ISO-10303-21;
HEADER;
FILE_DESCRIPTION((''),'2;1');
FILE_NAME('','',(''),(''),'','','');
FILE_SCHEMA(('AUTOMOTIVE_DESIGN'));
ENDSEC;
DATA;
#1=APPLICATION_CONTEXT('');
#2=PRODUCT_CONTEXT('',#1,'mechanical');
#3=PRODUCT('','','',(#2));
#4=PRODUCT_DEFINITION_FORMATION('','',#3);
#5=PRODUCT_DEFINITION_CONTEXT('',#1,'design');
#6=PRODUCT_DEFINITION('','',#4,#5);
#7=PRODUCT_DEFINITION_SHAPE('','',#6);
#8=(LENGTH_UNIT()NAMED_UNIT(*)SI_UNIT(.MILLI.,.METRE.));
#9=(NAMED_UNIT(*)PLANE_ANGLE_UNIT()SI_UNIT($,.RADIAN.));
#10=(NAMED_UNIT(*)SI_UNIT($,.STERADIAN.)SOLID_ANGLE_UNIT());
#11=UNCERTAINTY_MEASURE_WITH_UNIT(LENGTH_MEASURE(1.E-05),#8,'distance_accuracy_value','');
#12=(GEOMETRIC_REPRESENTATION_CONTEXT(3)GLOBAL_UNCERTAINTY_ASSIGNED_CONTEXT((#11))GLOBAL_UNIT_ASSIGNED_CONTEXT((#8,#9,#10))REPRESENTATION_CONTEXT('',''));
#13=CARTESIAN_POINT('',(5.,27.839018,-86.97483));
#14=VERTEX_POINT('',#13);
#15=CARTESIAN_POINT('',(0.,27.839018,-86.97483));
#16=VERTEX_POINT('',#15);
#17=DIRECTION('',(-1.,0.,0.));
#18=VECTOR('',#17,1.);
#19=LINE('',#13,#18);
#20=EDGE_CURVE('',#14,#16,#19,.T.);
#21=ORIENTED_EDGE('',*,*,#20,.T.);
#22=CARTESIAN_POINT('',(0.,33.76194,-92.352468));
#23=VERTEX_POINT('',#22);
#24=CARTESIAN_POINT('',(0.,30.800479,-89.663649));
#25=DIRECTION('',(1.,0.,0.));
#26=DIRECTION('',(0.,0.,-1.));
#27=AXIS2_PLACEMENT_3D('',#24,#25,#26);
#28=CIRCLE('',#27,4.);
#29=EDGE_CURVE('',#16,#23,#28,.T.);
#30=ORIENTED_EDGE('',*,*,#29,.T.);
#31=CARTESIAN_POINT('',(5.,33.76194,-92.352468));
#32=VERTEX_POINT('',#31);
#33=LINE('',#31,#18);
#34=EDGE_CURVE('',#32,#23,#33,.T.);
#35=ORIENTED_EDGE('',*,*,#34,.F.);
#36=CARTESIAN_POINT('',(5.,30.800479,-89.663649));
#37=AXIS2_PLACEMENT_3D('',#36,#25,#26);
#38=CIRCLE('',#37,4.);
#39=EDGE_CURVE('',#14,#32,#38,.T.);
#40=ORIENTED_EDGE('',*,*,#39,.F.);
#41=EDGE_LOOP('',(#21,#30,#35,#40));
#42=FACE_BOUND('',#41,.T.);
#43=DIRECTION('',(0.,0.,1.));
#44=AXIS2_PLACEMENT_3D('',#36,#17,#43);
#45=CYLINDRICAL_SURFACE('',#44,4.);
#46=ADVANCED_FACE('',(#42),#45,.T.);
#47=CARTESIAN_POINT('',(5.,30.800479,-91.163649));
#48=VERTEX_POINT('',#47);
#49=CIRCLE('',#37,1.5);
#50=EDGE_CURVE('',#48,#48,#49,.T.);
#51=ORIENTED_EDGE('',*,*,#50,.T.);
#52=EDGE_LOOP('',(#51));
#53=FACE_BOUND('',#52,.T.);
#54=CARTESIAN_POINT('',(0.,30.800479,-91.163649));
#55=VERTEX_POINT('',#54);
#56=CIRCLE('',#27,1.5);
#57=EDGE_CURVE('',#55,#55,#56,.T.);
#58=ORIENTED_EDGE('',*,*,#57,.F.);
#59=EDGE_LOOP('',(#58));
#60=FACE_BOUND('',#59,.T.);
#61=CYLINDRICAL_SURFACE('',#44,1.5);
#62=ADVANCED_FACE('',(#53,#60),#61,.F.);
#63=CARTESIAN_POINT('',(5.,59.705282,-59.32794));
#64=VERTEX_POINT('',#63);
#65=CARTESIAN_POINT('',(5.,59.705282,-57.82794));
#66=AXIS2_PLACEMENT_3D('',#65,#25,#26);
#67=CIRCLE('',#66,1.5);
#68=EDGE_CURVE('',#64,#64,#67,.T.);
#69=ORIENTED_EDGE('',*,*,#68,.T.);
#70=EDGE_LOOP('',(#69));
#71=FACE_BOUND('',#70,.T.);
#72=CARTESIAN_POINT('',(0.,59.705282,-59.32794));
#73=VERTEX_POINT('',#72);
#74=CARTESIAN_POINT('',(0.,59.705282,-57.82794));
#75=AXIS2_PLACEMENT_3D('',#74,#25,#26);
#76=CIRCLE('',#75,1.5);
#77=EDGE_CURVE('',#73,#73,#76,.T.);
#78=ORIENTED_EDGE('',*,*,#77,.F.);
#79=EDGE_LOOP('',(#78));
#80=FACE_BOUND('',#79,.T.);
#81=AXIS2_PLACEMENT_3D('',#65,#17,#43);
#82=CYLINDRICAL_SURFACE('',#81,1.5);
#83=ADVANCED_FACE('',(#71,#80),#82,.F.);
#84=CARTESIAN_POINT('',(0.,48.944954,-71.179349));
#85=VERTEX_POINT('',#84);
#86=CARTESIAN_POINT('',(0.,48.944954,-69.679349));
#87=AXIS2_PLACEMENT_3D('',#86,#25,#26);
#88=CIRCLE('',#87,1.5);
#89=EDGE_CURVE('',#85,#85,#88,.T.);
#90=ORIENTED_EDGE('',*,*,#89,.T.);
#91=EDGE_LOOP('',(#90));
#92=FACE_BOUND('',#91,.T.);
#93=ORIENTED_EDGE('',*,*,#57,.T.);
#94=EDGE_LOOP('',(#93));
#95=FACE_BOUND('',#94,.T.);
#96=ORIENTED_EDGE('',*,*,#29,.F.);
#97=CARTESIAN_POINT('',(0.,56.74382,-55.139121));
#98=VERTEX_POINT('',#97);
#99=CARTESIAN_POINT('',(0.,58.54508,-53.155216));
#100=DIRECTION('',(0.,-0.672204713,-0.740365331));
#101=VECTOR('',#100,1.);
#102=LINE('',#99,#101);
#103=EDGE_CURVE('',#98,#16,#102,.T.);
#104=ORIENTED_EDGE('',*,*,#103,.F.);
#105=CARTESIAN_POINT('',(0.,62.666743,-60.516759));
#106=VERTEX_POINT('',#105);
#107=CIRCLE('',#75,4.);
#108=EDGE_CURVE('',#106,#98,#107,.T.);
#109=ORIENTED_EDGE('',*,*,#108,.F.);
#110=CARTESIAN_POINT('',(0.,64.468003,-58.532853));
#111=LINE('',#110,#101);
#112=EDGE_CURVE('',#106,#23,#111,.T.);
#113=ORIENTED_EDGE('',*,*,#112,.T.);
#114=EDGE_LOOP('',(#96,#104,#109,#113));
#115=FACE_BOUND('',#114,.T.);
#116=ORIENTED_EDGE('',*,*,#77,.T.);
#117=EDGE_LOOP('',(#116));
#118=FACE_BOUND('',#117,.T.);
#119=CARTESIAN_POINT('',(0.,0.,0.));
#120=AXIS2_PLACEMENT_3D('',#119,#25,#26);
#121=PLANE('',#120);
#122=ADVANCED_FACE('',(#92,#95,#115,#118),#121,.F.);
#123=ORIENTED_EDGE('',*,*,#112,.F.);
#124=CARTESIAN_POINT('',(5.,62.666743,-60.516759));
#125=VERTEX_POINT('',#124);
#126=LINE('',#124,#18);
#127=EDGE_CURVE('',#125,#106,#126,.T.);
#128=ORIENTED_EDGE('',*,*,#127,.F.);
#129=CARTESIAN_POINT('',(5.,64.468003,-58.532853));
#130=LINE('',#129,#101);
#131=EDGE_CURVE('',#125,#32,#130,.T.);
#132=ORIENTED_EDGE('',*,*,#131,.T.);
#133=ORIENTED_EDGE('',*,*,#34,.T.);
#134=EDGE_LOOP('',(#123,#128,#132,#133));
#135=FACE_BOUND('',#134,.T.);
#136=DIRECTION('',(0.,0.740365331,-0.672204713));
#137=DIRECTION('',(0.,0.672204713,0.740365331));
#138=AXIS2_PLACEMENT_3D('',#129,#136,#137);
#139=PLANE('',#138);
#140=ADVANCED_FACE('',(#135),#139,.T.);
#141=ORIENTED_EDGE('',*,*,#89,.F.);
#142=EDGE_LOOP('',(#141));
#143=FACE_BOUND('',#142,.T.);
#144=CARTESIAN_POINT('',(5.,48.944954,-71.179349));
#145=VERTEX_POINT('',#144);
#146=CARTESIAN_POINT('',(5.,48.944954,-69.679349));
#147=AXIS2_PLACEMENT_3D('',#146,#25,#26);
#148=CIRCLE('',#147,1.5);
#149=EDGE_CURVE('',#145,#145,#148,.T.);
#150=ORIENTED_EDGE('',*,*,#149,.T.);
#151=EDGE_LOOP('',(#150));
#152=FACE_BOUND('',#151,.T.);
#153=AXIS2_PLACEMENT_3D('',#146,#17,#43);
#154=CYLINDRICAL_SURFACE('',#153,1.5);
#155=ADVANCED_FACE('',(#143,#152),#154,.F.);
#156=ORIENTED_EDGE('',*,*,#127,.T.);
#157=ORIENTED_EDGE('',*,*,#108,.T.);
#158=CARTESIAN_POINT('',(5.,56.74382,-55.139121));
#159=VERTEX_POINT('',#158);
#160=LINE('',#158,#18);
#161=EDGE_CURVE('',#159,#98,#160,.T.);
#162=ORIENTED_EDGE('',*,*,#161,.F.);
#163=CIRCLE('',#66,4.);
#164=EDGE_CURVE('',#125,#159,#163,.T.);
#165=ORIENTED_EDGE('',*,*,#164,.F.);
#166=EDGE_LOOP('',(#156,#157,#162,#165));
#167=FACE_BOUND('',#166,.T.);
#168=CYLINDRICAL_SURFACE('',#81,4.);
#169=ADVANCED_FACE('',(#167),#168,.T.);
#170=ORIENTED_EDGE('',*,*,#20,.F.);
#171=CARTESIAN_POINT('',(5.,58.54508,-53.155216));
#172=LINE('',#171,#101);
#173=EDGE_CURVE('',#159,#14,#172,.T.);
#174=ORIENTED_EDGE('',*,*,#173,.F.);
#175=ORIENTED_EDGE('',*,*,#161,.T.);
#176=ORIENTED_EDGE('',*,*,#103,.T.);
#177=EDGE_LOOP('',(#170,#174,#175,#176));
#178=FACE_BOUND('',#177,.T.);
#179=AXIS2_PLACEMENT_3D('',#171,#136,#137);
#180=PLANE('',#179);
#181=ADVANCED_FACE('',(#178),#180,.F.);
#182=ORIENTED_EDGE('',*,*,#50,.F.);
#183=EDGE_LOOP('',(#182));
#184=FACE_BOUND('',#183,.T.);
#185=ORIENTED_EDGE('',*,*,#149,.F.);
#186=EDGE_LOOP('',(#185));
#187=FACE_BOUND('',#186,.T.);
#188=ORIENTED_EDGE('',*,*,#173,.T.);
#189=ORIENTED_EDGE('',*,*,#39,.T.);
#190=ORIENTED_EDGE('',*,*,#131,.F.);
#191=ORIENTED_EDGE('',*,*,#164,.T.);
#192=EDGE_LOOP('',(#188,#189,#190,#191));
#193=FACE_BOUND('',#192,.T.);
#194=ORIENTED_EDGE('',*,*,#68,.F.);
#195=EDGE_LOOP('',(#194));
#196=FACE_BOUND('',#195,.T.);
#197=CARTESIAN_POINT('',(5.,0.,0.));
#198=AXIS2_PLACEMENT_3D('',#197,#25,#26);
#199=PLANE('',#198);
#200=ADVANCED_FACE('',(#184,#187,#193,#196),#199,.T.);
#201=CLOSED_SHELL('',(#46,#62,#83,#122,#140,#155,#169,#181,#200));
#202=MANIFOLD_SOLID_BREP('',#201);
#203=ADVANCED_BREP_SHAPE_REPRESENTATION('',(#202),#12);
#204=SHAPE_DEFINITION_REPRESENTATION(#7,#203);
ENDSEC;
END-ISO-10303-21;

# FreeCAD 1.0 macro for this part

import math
import FreeCAD as App
import Part
import Sketcher

V = App.Vector
Q = App.Units.Quantity

doc = App.newDocument("Part")
params = doc.addObject("Spreadsheet::Sheet", "Params")
for row, (alias, value) in enumerate([
    ("sketch1_diameter", "3 mm"),
    ("sketch1_radius", "4 mm"),
    ("sketch1_length", "43 mm"),
    ("pad1_length", "5 mm"),
], start=1):
    params.set(f"A{row}", alias)
    params.set(f"B{row}", "=" + value)
    params.setAlias(f"B{row}", alias)

body = doc.addObject("PartDesign::Body", "Body")

# Sketch on YZ plane
sketch1 = body.newObject("Sketcher::SketchObject", "Sketch")
sketch1.AttachmentSupport = (doc.getObject("YZ_Plane"), [""])
sketch1.MapMode = "FlatFace"
sketch1.addGeometry(Part.LineSegment(V(33.76194, -92.352468, 0), V(62.666743, -60.516759, 0)), False)
sketch1.addGeometry(Part.ArcOfCircle(Part.Circle(V(59.705282, -57.82794, 0), V(0, 0, 1), 4), math.radians(-42.237455), math.radians(137.762545)), False)
sketch1.addGeometry(Part.LineSegment(V(56.74382, -55.139121, 0), V(27.839018, -86.97483, 0)), False)
sketch1.addGeometry(Part.ArcOfCircle(Part.Circle(V(30.800479, -89.663649, 0), V(0, 0, 1), 4), math.radians(137.762545), math.radians(317.762545)), False)
sketch1.addGeometry(Part.Circle(V(30.800479, -89.663649, 0), V(0, 0, 1), 1.5), False)
sketch1.addGeometry(Part.Circle(V(48.944954, -69.679349, 0), V(0, 0, 1), 1.5), False)
sketch1.addGeometry(Part.Circle(V(59.705282, -57.82794, 0), V(0, 0, 1), 1.5), False)
sketch1.addConstraint(Sketcher.Constraint("Tangent", 0, 2, 1, 1))
sketch1.addConstraint(Sketcher.Constraint("Tangent", 1, 2, 2, 1))
sketch1.addConstraint(Sketcher.Constraint("Tangent", 2, 2, 3, 1))
sketch1.addConstraint(Sketcher.Constraint("Tangent", 3, 2, 0, 1))
sketch1.addConstraint(Sketcher.Constraint("Coincident", 4, 3, 3, 3))
sketch1.addConstraint(Sketcher.Constraint("Coincident", 6, 3, 1, 3))
sketch1.addConstraint(Sketcher.Constraint("Equal", 1, 3))
sketch1.addConstraint(Sketcher.Constraint("Equal", 4, 5))
sketch1.addConstraint(Sketcher.Constraint("Equal", 5, 6))
sketch1.addConstraint(Sketcher.Constraint("Diameter", 4, Q("3 mm")))
sketch1.addConstraint(Sketcher.Constraint("Radius", 1, Q("4 mm")))
sketch1.addConstraint(Sketcher.Constraint("Distance", 0, Q("43 mm")))
sketch1.addConstraint(Sketcher.Constraint("DistanceY", 3, 3, 5, 3, Q("19.9843 mm")))
sketch1.addConstraint(Sketcher.Constraint("DistanceX", -1, 1, 1, 3, Q("59.705282 mm")))
sketch1.addConstraint(Sketcher.Constraint("DistanceY", 1, 3, -1, 1, Q("57.82794 mm")))
sketch1.addConstraint(Sketcher.Constraint("DistanceX", -1, 1, 3, 3, Q("30.800479 mm")))
sketch1.addConstraint(Sketcher.Constraint("DistanceX", 5, 3, 0, 2, Q("13.721789 mm")))
sketch1.setExpression("Constraints[9]", "Params.sketch1_diameter")
sketch1.setExpression("Constraints[10]", "Params.sketch1_radius")
sketch1.setExpression("Constraints[11]", "Params.sketch1_length")
pad1 = body.newObject("PartDesign::Pad", "Pad")
pad1.Profile = sketch1
pad1.setExpression("Length", "Params.pad1_length")

doc.recompute()
